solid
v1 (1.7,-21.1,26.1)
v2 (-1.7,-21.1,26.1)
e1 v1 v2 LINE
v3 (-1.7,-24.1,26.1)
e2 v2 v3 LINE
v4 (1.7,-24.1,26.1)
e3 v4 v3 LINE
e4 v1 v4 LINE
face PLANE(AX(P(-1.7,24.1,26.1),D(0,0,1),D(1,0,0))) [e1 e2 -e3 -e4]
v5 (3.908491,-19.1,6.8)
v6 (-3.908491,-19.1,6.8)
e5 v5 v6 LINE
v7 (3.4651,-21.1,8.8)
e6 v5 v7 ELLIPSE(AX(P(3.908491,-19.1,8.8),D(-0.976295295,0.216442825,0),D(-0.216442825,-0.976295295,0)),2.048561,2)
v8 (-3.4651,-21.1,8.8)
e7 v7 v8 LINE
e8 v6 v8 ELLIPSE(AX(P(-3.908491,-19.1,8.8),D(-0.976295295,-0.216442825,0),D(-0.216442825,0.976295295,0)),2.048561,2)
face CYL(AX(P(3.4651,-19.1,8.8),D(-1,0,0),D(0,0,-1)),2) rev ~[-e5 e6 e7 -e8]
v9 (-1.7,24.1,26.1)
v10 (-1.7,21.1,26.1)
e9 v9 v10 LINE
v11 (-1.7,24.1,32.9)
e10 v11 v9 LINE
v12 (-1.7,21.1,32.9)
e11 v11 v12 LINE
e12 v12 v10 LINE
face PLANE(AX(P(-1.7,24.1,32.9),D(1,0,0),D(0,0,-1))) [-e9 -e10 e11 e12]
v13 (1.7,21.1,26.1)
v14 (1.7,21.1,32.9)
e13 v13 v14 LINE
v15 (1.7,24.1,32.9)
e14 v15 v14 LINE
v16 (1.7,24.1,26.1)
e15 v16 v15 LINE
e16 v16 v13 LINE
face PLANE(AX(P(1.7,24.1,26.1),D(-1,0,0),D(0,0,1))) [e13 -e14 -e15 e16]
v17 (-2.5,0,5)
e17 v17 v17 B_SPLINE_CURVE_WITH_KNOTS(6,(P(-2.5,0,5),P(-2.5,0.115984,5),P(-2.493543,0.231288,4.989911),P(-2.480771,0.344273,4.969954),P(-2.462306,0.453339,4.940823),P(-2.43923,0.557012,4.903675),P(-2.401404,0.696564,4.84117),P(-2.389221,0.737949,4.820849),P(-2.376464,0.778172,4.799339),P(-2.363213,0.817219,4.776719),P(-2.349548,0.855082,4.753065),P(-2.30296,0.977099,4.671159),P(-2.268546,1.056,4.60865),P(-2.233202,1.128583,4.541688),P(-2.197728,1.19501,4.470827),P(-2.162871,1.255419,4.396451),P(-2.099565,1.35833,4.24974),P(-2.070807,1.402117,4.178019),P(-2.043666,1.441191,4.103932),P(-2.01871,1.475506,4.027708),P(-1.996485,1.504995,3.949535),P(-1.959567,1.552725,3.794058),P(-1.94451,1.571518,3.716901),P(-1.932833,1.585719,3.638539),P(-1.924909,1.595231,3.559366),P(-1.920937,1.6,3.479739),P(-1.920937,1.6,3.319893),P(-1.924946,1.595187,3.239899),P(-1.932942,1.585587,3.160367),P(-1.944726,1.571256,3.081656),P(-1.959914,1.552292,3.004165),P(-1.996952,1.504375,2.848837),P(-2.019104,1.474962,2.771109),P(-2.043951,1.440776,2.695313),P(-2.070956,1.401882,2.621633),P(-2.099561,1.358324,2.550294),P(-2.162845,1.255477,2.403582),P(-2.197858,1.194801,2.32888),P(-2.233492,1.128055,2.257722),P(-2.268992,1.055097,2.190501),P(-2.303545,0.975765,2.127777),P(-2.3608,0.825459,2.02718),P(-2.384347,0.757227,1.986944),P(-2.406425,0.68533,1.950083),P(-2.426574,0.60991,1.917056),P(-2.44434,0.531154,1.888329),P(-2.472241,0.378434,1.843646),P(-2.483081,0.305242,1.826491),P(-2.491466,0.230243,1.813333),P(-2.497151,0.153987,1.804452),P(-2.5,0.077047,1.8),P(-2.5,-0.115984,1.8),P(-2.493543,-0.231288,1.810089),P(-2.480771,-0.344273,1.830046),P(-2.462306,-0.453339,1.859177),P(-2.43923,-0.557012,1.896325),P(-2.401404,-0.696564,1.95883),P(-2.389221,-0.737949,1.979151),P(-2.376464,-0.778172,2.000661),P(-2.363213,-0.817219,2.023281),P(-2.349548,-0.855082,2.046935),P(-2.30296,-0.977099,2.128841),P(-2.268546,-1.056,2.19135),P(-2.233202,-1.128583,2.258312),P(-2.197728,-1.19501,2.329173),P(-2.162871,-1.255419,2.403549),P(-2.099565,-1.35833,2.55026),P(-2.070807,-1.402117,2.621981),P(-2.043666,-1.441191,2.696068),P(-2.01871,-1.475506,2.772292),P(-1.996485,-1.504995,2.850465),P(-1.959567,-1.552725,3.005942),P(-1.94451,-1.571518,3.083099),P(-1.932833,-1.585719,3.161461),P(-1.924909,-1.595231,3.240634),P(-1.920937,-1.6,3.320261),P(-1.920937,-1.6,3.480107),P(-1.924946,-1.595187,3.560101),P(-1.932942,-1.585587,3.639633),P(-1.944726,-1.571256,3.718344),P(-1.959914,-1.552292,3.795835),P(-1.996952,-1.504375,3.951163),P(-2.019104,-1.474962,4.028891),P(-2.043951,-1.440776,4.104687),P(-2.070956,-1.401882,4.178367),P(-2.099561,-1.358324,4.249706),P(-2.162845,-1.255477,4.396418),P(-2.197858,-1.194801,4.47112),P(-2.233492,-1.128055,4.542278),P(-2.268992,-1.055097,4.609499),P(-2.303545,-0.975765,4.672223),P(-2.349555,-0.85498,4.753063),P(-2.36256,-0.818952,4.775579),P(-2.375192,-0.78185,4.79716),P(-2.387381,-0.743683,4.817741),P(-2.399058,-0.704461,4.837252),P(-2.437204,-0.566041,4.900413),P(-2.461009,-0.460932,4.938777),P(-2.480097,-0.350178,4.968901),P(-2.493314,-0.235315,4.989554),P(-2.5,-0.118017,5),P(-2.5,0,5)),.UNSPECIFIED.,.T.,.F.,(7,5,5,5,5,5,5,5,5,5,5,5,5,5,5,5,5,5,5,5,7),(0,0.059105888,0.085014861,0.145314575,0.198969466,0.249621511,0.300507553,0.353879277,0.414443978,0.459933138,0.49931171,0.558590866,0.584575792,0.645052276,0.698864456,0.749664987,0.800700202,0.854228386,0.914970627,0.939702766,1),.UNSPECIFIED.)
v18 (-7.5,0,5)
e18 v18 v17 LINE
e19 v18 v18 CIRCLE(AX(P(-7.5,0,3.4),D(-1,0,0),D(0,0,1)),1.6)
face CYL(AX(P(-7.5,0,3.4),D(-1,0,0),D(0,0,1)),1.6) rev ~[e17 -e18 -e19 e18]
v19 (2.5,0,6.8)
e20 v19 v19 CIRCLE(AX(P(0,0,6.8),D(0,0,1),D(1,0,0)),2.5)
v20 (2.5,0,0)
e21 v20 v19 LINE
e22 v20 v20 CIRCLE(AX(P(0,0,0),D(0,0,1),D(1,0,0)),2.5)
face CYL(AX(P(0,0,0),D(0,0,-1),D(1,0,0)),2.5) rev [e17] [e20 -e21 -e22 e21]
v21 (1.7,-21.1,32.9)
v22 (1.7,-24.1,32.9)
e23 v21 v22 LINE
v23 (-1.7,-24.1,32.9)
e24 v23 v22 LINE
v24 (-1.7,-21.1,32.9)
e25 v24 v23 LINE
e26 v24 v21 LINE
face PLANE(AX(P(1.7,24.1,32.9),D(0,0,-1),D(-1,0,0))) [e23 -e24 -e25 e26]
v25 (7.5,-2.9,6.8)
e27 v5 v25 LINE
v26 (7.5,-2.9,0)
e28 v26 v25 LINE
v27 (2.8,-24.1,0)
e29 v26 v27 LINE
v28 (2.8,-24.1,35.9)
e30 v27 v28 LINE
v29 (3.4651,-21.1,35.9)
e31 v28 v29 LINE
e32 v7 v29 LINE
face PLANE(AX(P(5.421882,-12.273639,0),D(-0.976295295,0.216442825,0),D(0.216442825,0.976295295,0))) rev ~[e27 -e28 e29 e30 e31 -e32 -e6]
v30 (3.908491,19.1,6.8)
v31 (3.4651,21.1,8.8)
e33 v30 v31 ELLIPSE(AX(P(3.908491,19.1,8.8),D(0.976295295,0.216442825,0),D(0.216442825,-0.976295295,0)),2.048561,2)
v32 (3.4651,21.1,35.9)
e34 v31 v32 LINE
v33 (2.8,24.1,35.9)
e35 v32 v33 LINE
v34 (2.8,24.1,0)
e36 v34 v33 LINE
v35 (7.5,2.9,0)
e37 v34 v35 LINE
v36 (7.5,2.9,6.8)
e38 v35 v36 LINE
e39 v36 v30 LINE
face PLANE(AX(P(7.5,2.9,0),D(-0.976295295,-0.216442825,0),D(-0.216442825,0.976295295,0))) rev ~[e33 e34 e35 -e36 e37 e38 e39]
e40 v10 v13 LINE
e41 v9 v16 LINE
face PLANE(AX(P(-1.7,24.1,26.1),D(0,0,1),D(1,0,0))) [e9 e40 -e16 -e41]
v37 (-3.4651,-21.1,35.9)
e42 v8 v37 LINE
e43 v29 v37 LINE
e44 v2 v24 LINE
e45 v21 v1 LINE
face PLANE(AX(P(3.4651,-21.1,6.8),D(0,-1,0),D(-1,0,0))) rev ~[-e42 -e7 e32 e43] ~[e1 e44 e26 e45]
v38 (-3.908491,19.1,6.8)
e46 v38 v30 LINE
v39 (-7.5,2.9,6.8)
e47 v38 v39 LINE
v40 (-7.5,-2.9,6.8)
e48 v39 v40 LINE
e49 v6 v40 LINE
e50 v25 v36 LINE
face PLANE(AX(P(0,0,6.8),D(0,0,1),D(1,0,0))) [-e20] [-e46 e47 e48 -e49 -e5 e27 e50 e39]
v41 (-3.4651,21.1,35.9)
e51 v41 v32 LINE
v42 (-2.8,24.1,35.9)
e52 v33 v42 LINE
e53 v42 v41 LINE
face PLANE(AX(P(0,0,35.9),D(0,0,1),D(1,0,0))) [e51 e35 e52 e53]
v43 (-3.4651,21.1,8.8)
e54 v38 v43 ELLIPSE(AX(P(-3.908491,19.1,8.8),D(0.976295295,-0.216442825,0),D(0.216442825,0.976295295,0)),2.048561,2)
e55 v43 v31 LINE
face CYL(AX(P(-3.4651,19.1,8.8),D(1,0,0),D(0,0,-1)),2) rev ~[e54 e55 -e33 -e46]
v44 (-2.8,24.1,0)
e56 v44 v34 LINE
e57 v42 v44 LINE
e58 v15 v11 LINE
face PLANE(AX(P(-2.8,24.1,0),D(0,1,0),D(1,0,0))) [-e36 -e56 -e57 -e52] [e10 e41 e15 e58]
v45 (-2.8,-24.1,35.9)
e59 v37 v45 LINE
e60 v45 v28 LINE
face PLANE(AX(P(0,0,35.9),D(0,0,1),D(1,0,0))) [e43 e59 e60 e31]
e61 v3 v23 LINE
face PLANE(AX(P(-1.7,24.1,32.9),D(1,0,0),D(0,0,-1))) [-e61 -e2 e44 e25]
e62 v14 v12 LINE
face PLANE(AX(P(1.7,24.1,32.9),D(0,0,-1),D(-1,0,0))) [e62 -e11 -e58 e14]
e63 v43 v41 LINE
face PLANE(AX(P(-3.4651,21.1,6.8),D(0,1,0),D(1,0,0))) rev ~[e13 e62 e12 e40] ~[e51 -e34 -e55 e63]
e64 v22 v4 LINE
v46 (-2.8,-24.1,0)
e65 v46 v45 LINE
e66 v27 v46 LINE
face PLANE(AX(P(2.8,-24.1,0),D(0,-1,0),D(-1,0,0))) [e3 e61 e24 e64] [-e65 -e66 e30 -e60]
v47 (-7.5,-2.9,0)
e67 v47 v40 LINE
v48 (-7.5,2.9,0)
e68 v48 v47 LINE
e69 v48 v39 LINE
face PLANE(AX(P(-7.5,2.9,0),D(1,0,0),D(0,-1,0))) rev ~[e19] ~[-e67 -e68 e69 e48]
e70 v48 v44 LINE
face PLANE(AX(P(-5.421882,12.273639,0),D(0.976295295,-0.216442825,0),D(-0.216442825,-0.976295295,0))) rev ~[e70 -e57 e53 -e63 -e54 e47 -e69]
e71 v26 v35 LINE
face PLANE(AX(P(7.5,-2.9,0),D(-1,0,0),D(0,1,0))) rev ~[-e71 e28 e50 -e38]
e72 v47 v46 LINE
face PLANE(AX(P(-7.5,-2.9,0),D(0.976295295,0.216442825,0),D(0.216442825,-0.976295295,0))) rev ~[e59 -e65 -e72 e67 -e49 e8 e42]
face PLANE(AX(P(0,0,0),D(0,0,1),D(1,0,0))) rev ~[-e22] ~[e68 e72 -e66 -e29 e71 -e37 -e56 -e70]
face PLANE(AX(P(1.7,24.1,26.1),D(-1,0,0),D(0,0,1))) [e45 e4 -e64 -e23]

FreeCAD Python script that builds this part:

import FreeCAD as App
import Part
import Sketcher
from FreeCAD import Vector
Q = App.Units.Quantity


def edges_at(feature, points):
    """Names of the edges that pass closest to the given points."""
    edges = feature.Shape.Edges
    near = lambda p: min(range(len(edges)), key=lambda i: edges[i].distToShape(Part.Vertex(*p))[0])
    return sorted({f"Edge{near(p) + 1}" for p in points})


def add_polygon(sketch, points):
    """Adds a closed chain of lines whose ends are joined by coincident constraints."""
    first, n = sketch.GeometryCount, len(points)
    for a, b in zip(points, points[1:] + points[:1]):
        sketch.addGeometry(Part.LineSegment(App.Vector(*a, 0), App.Vector(*b, 0)), False)
    for i in range(n):
        sketch.addConstraint(Sketcher.Constraint("Coincident", first + i, 2, first + (i + 1) % n, 1))

doc = App.newDocument("Part")
body = doc.addObject("PartDesign::Body", "Body")

# Sketch on XY plane
sketch1 = body.newObject("Sketcher::SketchObject", "Sketch")
sketch1.AttachmentSupport = (doc.getObject("XY_Plane"), [""])
sketch1.MapMode = "FlatFace"
add_polygon(sketch1, [(-7.5, -2.9), (-2.8, -24.1), (2.8, -24.1), (7.5, -2.9), (7.5, 2.9), (2.8, 24.1), (-2.8, 24.1), (-7.5, 2.9)])  # lines 0-7
sketch1.addGeometry(Part.Circle(Vector(0, 0, 0), Vector(0, 0, 1), 2.5), False)  # 8
sketch1.addConstraint([
    Sketcher.Constraint("Horizontal", 1),
    Sketcher.Constraint("Vertical", 3),
    Sketcher.Constraint("Horizontal", 5),
    Sketcher.Constraint("Vertical", 7),
    Sketcher.Constraint("Coincident", 8, 3, -1, 1),
    Sketcher.Constraint("Symmetric", 0, 2, 4, 2, -1, 1),
    Sketcher.Constraint("Symmetric", 2, 2, 6, 2, -1, 1),
    Sketcher.Constraint("Parallel", 0, 4),
    Sketcher.Constraint("Parallel", 2, 6),
    Sketcher.Constraint("Horizontal", 3, 2, 6, 2),
    Sketcher.Constraint("Vertical", 1, 2, 4, 2),
    Sketcher.Constraint("Diameter", 8, 5.0),
    Sketcher.Constraint("DistanceX", 1, 1, 1, 2, 5.6),
    Sketcher.Constraint("DistanceY", 3, 1, 3, 2, 5.8),
    Sketcher.Constraint("DistanceY", 1, 2, 4, 2, 48.2),
    Sketcher.Constraint("Angle", 0, Q("-77.4998 deg")),
])
pad1 = body.newObject("PartDesign::Pad", "Pad")
pad1.Profile = sketch1
pad1.Length = 6.8

# Sketch on YZ plane
sketch2 = body.newObject("Sketcher::SketchObject", "Sketch001")
sketch2.AttachmentSupport = (doc.getObject("YZ_Plane"), [""])
sketch2.MapMode = "FlatFace"
sketch2.AttachmentOffset = App.Placement(Vector(0, 0, -7.5), App.Rotation())
sketch2.addGeometry(Part.Circle(Vector(0, 3.4, 0), Vector(0, 0, 1), 1.6), False)
sketch2.addConstraint([
    Sketcher.Constraint("PointOnObject", 0, 3, -2),
    Sketcher.Constraint("Diameter", 0, 3.2),
    Sketcher.Constraint("DistanceY", -1, 1, 0, 3, 3.4),
])
pocket1 = body.newObject("PartDesign::Pocket", "Pocket")
pocket1.Profile = sketch2
pocket1.Length = 7.4875
pocket1.Reversed = True

# Sketch on XY plane
sketch3 = body.newObject("Sketcher::SketchObject", "Sketch002")
sketch3.AttachmentSupport = (doc.getObject("XY_Plane"), [""])
sketch3.MapMode = "FlatFace"
sketch3.AttachmentOffset = App.Placement(Vector(0, 0, 6.8), App.Rotation())
add_polygon(sketch3, [(-3.5, 21.1), (3.5, 21.1), (2.8, 24.1), (-2.8, 24.1)])  # lines 0-3
add_polygon(sketch3, [(2.8, -24.1), (3.5, -21.1), (-3.5, -21.1), (-2.8, -24.1)])  # lines 4-7
sketch3.addConstraint([
    Sketcher.Constraint("Horizontal", 0),
    Sketcher.Constraint("Horizontal", 2),
    Sketcher.Constraint("Horizontal", 5),
    Sketcher.Constraint("Horizontal", 7),
    Sketcher.Constraint("Symmetric", 3, 2, 4, 2, -1, 1),
    Sketcher.Constraint("Symmetric", 1, 2, 6, 2, -1, 1),
    Sketcher.Constraint("Parallel", 3, 4),
    Sketcher.Constraint("Parallel", 1, 6),
    Sketcher.Constraint("Vertical", 0, 2, 4, 2),
    Sketcher.Constraint("Vertical", 2, 2, 6, 2),
    Sketcher.Constraint("DistanceY", 0, 2, 1, 2, 3.0),
    Sketcher.Constraint("DistanceX", 2, 2, 2, 1, 5.6),
    Sketcher.Constraint("Angle", 1, Q("102.5002 deg")),
    Sketcher.Constraint("DistanceY", -1, 1, 0, 2, 21.1),
])
pad2 = body.newObject("PartDesign::Pad", "Pad001")
pad2.Profile = sketch3
pad2.Length = 29.1

# Sketch on XZ plane
sketch4 = body.newObject("Sketcher::SketchObject", "Sketch003")
sketch4.AttachmentSupport = (doc.getObject("XZ_Plane"), [""])
sketch4.MapMode = "FlatFace"
sketch4.AttachmentOffset = App.Placement(Vector(0, 0, -24.1), App.Rotation())
add_polygon(sketch4, [(-1.7, 32.9), (1.7, 32.9), (1.7, 26.1), (-1.7, 26.1)])  # lines 0-3
sketch4.addConstraint([
    Sketcher.Constraint("Horizontal", 0),
    Sketcher.Constraint("Vertical", 1),
    Sketcher.Constraint("Horizontal", 2),
    Sketcher.Constraint("Vertical", 3),
    Sketcher.Constraint("DistanceX", 0, 1, 0, 2, 3.4),
    Sketcher.Constraint("DistanceY", 1, 2, 1, 1, 6.8),
    Sketcher.Constraint("DistanceX", -1, 1, 0, 2, 1.7),
    Sketcher.Constraint("DistanceY", -1, 1, 0, 2, 32.9),
])
pocket2 = body.newObject("PartDesign::Pocket", "Pocket001")
pocket2.Profile = sketch4
pocket2.Type = "ThroughAll"
pocket2.Reversed = True
doc.recompute()

fillet = body.newObject("PartDesign::Fillet", "Fillet")
fillet.Base = (pocket2, edges_at(pocket2, [(0, -21.1, 6.8), (0, 21.1, 6.8)]))
fillet.Radius = 2

doc.recompute()
